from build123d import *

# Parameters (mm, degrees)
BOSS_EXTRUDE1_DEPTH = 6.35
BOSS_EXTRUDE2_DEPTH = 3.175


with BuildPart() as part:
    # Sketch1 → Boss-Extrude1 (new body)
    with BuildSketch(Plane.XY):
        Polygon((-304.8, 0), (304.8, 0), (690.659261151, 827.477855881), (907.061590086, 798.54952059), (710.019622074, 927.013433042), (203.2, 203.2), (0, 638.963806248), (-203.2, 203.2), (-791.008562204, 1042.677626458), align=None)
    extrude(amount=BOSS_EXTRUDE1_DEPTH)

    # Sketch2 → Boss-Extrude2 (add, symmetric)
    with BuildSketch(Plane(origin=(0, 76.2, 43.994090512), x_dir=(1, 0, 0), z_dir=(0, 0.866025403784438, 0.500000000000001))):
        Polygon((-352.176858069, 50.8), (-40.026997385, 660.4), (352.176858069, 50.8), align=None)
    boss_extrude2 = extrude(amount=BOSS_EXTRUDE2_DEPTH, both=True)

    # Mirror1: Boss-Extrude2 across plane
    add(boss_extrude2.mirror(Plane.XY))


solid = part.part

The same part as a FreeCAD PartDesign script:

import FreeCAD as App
import Part
import Sketcher
from FreeCAD import Vector
Q = App.Units.Quantity

doc = App.newDocument("Part")
body = doc.addObject("PartDesign::Body", "Body")

# Sketch on XY plane
sketch1 = body.newObject("Sketcher::SketchObject", "Sketch")
sketch1.AttachmentSupport = (doc.getObject("XY_Plane"), [""])
sketch1.MapMode = "FlatFace"
sketch1.addGeometry([
    Part.LineSegment(Vector(-304.8, 0, 0), Vector(304.8, 0, 0)),  # 0
    Part.LineSegment(Vector(304.8, 0, 0), Vector(690.659261, 827.477856, 0)),  # 1
    Part.LineSegment(Vector(690.659261, 827.477856, 0), Vector(907.06159, 798.549521, 0)),  # 2
    Part.LineSegment(Vector(907.06159, 798.549521, 0), Vector(710.019622, 927.013433, 0)),  # 3
    Part.LineSegment(Vector(710.019622, 927.013433, 0), Vector(203.2, 203.2, 0)),  # 4
    Part.LineSegment(Vector(203.2, 203.2, 0), Vector(0, 638.963806, 0)),  # 5
    Part.LineSegment(Vector(0, 638.963806, 0), Vector(-203.2, 203.2, 0)),  # 6
    Part.LineSegment(Vector(-203.2, 203.2, 0), Vector(-791.008562, 1042.677626, 0)),  # 7
    Part.LineSegment(Vector(-791.008562, 1042.677626, 0), Vector(-304.8, 0, 0)),  # 8
], False)
sketch1.addConstraint([
    Sketcher.Constraint("Coincident", 0, 2, 1, 1),
    Sketcher.Constraint("Coincident", 1, 2, 2, 1),
    Sketcher.Constraint("Coincident", 2, 2, 3, 1),
    Sketcher.Constraint("Coincident", 3, 2, 4, 1),
    Sketcher.Constraint("Coincident", 4, 2, 5, 1),
    Sketcher.Constraint("Coincident", 5, 2, 6, 1),
    Sketcher.Constraint("Coincident", 6, 2, 7, 1),
    Sketcher.Constraint("Coincident", 7, 2, 8, 1),
    Sketcher.Constraint("Coincident", 8, 2, 0, 1),
    Sketcher.Constraint("Horizontal", 0),
    Sketcher.Constraint("Symmetric", 0, 2, 8, 2, -1, 1),
    Sketcher.Constraint("Symmetric", 4, 2, 6, 2, -2),
    Sketcher.Constraint("PointOnObject", 5, 2, -2),
    Sketcher.Constraint("Parallel", 1, 6),
    Sketcher.Constraint("Parallel", 5, 8),
    Sketcher.Constraint("DistanceX", 0, 1, 0, 2, Q("24 in")),
    Sketcher.Constraint("DistanceX", -1, 1, 4, 2, Q("8 in")),
    Sketcher.Constraint("DistanceY", -1, 1, 4, 2, Q("8 in")),
    Sketcher.Constraint("Angle", 1, Q("65 deg")),
    Sketcher.Constraint("Angle", 4, Q("-125 deg")),
    Sketcher.Constraint("Angle", 7, Q("125 deg")),
    Sketcher.Constraint("Distance", 3, 235.220139),
    Sketcher.Constraint("DistanceX", -1, 1, 1, 2, 690.659261),
    Sketcher.Constraint("DistanceX", -1, 1, 2, 2, 907.06159),
    Sketcher.Constraint("DistanceY", -1, 1, 2, 2, 798.549521),
])
pad1 = body.newObject("PartDesign::Pad", "Pad")
pad1.Profile = sketch1
pad1.Length = Q("0.25 in")

# Sketch on an angled plane
sketch2 = body.newObject("Sketcher::SketchObject", "Sketch001")
sketch2.Placement = App.Placement(Vector(0, 76.2, 43.994091), App.Rotation(Vector(1, 0, 0), Vector(0, 0.5, -0.866025404), Vector(0, 0.866025404, 0.5), "ZXY"))
sketch2.addGeometry([
    Part.LineSegment(Vector(-40.026997, 660.4, 0), Vector(-352.176858, 50.8, 0)),
    Part.LineSegment(Vector(-352.176858, 50.8, 0), Vector(352.176858, 50.8, 0)),
    Part.LineSegment(Vector(352.176858, 50.8, 0), Vector(-40.026997, 660.4, 0)),
], False)
sketch2.addConstraint([
    Sketcher.Constraint("Coincident", 0, 2, 1, 1),
    Sketcher.Constraint("Coincident", 1, 2, 2, 1),
    Sketcher.Constraint("Coincident", 2, 2, 0, 1),
    Sketcher.Constraint("Horizontal", 1),
    Sketcher.Constraint("DistanceY", -1, 1, 0, 2, Q("2 in")),
    Sketcher.Constraint("DistanceY", -1, 1, 2, 2, Q("26 in")),
    Sketcher.Constraint("Distance", 0, 684.872029),
    Sketcher.Constraint("Distance", 2, 724.86966),
    Sketcher.Constraint("DistanceX", 0, 2, -1, 1, 352.176858),
])
pad2 = body.newObject("PartDesign::Pad", "Pad001")
pad2.Profile = sketch2
pad2.Length = Q("0.25 in")
pad2.Midplane = True
doc.recompute()

mirrored = body.newObject("PartDesign::Mirrored", "Mirrored")
mirrored.Originals = [pad2]
mirrored.MirrorPlane = (doc.getObject("XY_Plane"), [""])
body.Tip = mirrored

doc.recompute()
